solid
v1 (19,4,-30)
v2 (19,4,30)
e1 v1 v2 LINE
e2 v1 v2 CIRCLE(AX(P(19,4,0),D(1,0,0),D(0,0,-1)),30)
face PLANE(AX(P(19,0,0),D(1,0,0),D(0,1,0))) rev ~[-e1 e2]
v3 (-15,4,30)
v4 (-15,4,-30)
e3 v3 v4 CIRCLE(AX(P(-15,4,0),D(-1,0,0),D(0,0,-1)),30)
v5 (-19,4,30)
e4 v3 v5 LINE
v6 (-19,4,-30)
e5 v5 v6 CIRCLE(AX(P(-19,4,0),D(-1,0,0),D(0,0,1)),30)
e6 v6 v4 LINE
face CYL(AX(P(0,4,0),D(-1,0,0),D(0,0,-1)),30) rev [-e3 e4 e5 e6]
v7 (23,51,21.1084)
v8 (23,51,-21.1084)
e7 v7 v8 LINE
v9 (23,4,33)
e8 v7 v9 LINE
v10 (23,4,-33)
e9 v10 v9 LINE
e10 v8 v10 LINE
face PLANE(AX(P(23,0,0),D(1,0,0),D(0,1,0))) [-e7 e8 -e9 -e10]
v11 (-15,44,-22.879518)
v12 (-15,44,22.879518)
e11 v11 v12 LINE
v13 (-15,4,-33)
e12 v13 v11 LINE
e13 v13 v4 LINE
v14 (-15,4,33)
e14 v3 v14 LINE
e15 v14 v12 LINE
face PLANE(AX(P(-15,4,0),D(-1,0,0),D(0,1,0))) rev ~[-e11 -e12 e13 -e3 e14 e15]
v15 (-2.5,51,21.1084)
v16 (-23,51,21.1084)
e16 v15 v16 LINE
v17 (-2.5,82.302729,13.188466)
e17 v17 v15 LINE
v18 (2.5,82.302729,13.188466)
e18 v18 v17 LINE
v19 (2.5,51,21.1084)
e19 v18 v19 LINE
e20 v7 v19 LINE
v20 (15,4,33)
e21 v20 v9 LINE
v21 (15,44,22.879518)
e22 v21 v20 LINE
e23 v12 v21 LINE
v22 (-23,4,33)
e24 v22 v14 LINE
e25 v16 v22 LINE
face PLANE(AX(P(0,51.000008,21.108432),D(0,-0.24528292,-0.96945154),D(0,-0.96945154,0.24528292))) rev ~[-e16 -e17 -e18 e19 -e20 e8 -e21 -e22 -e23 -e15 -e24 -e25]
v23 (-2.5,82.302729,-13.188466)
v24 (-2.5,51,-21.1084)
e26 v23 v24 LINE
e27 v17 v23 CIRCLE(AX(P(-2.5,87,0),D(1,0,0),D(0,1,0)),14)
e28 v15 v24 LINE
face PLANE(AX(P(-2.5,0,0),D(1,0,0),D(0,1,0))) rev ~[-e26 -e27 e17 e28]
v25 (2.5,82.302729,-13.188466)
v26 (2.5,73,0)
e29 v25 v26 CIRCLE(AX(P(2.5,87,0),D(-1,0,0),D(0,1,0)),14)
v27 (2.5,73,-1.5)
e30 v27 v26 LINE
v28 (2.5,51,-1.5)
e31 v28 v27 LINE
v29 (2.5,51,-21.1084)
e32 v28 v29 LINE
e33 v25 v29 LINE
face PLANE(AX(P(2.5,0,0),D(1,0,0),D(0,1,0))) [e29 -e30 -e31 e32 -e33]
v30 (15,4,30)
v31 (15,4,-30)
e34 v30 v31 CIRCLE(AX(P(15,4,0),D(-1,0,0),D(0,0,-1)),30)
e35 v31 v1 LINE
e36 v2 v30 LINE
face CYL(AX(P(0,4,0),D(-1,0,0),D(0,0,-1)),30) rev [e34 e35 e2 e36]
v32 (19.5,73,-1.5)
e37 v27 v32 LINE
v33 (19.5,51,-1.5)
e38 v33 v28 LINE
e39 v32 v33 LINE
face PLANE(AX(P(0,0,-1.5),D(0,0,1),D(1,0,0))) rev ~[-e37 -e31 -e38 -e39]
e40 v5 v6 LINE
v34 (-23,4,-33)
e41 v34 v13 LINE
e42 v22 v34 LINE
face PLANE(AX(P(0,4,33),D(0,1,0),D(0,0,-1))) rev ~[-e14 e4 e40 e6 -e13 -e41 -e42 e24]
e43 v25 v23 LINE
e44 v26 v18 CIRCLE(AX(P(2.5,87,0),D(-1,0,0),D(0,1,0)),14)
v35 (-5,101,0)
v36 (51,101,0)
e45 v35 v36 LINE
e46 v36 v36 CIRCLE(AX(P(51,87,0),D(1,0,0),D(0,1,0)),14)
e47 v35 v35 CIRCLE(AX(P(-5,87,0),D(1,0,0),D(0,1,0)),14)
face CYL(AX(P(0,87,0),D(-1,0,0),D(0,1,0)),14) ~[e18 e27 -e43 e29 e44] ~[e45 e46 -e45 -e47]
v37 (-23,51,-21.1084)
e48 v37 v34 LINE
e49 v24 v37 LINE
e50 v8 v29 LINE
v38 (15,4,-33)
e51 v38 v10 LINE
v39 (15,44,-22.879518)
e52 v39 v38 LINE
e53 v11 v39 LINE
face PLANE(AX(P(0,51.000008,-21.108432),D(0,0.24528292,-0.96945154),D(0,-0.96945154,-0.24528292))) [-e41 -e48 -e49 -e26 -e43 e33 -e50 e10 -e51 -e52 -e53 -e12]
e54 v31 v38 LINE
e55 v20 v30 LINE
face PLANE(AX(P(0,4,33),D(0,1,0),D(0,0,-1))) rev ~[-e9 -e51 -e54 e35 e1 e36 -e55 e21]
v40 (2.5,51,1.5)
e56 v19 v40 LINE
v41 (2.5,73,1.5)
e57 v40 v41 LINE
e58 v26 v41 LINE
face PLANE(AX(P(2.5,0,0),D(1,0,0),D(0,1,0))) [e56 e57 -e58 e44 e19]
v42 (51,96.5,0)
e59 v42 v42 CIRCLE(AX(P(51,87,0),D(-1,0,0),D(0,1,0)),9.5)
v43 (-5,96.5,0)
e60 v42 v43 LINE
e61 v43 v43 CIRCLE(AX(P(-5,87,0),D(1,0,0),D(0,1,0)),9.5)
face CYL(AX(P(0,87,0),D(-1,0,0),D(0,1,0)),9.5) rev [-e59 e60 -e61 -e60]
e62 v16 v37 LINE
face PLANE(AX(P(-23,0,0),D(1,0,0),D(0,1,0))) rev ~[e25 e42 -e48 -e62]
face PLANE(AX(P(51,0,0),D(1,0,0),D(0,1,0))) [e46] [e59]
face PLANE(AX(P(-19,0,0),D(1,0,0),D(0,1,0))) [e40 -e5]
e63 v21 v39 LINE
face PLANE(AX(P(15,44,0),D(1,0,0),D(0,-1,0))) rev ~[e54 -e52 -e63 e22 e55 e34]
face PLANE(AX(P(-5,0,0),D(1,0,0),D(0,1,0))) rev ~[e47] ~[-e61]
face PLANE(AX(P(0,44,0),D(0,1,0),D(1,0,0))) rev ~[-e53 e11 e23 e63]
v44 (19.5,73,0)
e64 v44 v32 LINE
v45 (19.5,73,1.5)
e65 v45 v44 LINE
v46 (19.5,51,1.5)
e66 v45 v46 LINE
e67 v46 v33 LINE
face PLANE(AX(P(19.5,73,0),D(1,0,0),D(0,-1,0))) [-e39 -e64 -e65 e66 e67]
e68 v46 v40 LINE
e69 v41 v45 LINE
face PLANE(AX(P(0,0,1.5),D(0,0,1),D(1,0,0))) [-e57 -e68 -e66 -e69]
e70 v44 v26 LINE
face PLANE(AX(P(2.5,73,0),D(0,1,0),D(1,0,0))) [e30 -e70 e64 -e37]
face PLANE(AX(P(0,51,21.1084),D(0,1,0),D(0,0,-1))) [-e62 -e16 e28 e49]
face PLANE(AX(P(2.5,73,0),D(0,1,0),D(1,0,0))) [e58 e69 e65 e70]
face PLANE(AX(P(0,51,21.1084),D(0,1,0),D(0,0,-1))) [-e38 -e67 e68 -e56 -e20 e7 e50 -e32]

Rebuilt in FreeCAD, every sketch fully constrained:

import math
import FreeCAD as App
import Part
import Sketcher
from FreeCAD import Vector
Q = App.Units.Quantity

doc = App.newDocument("Part")
body = doc.addObject("PartDesign::Body", "Body")

sketch1 = body.newObject("Sketcher::SketchObject", "Sketch")
sketch1.AttachmentSupport = (doc.getObject("YZ_Plane"), [""])
sketch1.MapMode = "FlatFace"
sketch1.addGeometry([
    Part.LineSegment(Vector(51, 21, 0), Vector(4, 33, 0)),
    Part.LineSegment(Vector(4, 33, 0), Vector(4, -33, 0)),
    Part.LineSegment(Vector(4, -33, 0), Vector(51, -21, 0)),
    Part.LineSegment(Vector(51, -21, 0), Vector(51, 21, 0)),
], False)
sketch1.addConstraint([
    Sketcher.Constraint("Coincident", 0, 2, 1, 1),
    Sketcher.Constraint("Coincident", 1, 2, 2, 1),
    Sketcher.Constraint("Coincident", 2, 2, 3, 1),
    Sketcher.Constraint("Coincident", 3, 2, 0, 1),
    Sketcher.Constraint("Vertical", 1),
    Sketcher.Constraint("Vertical", 3),
    Sketcher.Constraint("Equal", 0, 2),
    Sketcher.Constraint("DistanceY", 1, 2, 1, 1, Q("66 mm")),
    Sketcher.Constraint("DistanceX", -1, 1, 0, 2, Q("4 mm")),
    Sketcher.Constraint("DistanceY", -1, 1, 0, 2, Q("33 mm")),
    Sketcher.Constraint("DistanceX", -1, 1, 2, 2, Q("51 mm")),
    Sketcher.Constraint("Distance", 0, Q("48.481 mm")),
])
pad1 = body.newObject("PartDesign::Pad", "Pad")
pad1.Profile = sketch1
pad1.Length = 46
pad1.Midplane = True

sketch2 = body.newObject("Sketcher::SketchObject", "Sketch001")
sketch2.AttachmentSupport = (doc.getObject("YZ_Plane"), [""])
sketch2.MapMode = "FlatFace"
sketch2.addGeometry([
    Part.LineSegment(Vector(87, 12, 0), Vector(51, 21, 0)),
    Part.LineSegment(Vector(51, 21, 0), Vector(51, -21, 0)),
    Part.LineSegment(Vector(51, -21, 0), Vector(87, -12, 0)),
    Part.LineSegment(Vector(87, -12, 0), Vector(87, 12, 0)),
], False)
sketch2.addConstraint([
    Sketcher.Constraint("Coincident", 0, 2, 1, 1),
    Sketcher.Constraint("Coincident", 1, 2, 2, 1),
    Sketcher.Constraint("Coincident", 2, 2, 3, 1),
    Sketcher.Constraint("Coincident", 3, 2, 0, 1),
    Sketcher.Constraint("Vertical", 1),
    Sketcher.Constraint("Vertical", 3),
    Sketcher.Constraint("Equal", 0, 2),
    Sketcher.Constraint("DistanceY", 3, 1, 3, 2, Q("24 mm")),
    Sketcher.Constraint("DistanceX", -1, 1, 2, 2, Q("87 mm")),
    Sketcher.Constraint("DistanceX", 1, 2, 2, 2, Q("36 mm")),
    Sketcher.Constraint("DistanceY", 2, 2, -1, 1, Q("12 mm")),
    Sketcher.Constraint("DistanceY", 1, 2, 1, 1, Q("42.2168 mm")),
])
pad2 = body.newObject("PartDesign::Pad", "Pad001")
pad2.Profile = sketch2
pad2.Length = 5
pad2.Midplane = True

sketch3 = body.newObject("Sketcher::SketchObject", "Sketch002")
sketch3.AttachmentSupport = (doc.getObject("XY_Plane"), [""])
sketch3.MapMode = "FlatFace"
sketch3.addGeometry([
    Part.LineSegment(Vector(15, 44, 0), Vector(-15, 44, 0)),
    Part.LineSegment(Vector(-15, 44, 0), Vector(-15, 4, 0)),
    Part.LineSegment(Vector(-15, 4, 0), Vector(15, 4, 0)),
    Part.LineSegment(Vector(15, 4, 0), Vector(15, 44, 0)),
], False)
sketch3.addConstraint([
    Sketcher.Constraint("Coincident", 0, 2, 1, 1),
    Sketcher.Constraint("Coincident", 1, 2, 2, 1),
    Sketcher.Constraint("Coincident", 2, 2, 3, 1),
    Sketcher.Constraint("Coincident", 3, 2, 0, 1),
    Sketcher.Constraint("Horizontal", 0),
    Sketcher.Constraint("Vertical", 1),
    Sketcher.Constraint("Horizontal", 2),
    Sketcher.Constraint("Vertical", 3),
    Sketcher.Constraint("DistanceX", 0, 2, 0, 1, Q("30 mm")),
    Sketcher.Constraint("DistanceY", 1, 2, 1, 1, Q("40 mm")),
    Sketcher.Constraint("DistanceX", 0, 2, -1, 1, Q("15 mm")),
    Sketcher.Constraint("DistanceY", -1, 1, 0, 2, Q("44 mm")),
])
pocket1 = body.newObject("PartDesign::Pocket", "Pocket")
pocket1.Profile = sketch3
pocket1.Length = 66
pocket1.Midplane = True

sketch4 = body.newObject("Sketcher::SketchObject", "Sketch003")
sketch4.AttachmentSupport = (doc.getObject("YZ_Plane"), [""])
sketch4.MapMode = "FlatFace"
sketch4.addGeometry([
    Part.Circle(Vector(87, 0, 0), Vector(0, 0, 1), 14),
    Part.Circle(Vector(87, 0, 0), Vector(0, 0, 1), 10),
], False)
sketch4.addConstraint([
    Sketcher.Constraint("Coincident", 1, 3, 0, 3),
    Sketcher.Constraint("PointOnObject", 0, 3, -1),
    Sketcher.Constraint("Diameter", 0, Q("28 mm")),
    Sketcher.Constraint("Diameter", 1, Q("19 mm")),
    Sketcher.Constraint("DistanceX", -1, 1, 0, 3, Q("87 mm")),
])
pad3 = body.newObject("PartDesign::Pad", "Pad002")
pad3.Profile = sketch4
pad3.Type = "TwoLengths"
pad3.Length = 51
pad3.Length2 = 5

sketch5 = body.newObject("Sketcher::SketchObject", "Sketch004")
sketch5.AttachmentSupport = (doc.getObject("YZ_Plane"), [""])
sketch5.MapMode = "FlatFace"
sketch5.addGeometry([
    Part.LineSegment(Vector(87, -10, 0), Vector(87, 10, 0)),
    Part.ArcOfCircle(Part.Circle(Vector(87, 0, 0), Vector(0, 0, 1), 10), math.radians(90), math.radians(270)),
], False)
sketch5.addConstraint([
    Sketcher.Constraint("Coincident", 0, 1, 1, 2),
    Sketcher.Constraint("Coincident", 1, 1, 0, 2),
    Sketcher.Constraint("Vertical", 0),
    Sketcher.Constraint("PointOnObject", 1, 3, -1),
    Sketcher.Constraint("Vertical", 1, 3, 0, 1),
    Sketcher.Constraint("Radius", 1, Q("9.5 mm")),
    Sketcher.Constraint("DistanceX", -1, 1, 1, 3, Q("87 mm")),
])
pocket2 = body.newObject("PartDesign::Pocket", "Pocket001")
pocket2.Profile = sketch5
pocket2.Type = "ThroughAll"
pocket2.Midplane = True

sketch6 = body.newObject("Sketcher::SketchObject", "Sketch005")
sketch6.AttachmentSupport = (doc.getObject("YZ_Plane"), [""])
sketch6.MapMode = "FlatFace"
sketch6.addGeometry([
    Part.ArcOfCircle(Part.Circle(Vector(4, 0, 0), Vector(0, 0, 1), 30), math.radians(-90), math.radians(90)),
    Part.LineSegment(Vector(4, 30, 0), Vector(4, -30, 0)),
], False)
sketch6.addConstraint([
    Sketcher.Constraint("Coincident", 0, 1, 1, 2),
    Sketcher.Constraint("Coincident", 1, 1, 0, 2),
    Sketcher.Constraint("Vertical", 1),
    Sketcher.Constraint("PointOnObject", 0, 3, -1),
    Sketcher.Constraint("Radius", 0, Q("30 mm")),
    Sketcher.Constraint("DistanceX", -1, 1, 0, 3, Q("4 mm")),
    Sketcher.Constraint("DistanceX", -1, 1, 0, 1, Q("4 mm")),
])
pocket3 = body.newObject("PartDesign::Pocket", "Pocket002")
pocket3.Profile = sketch6
pocket3.Length = 38
pocket3.Midplane = True

sketch7 = body.newObject("Sketcher::SketchObject", "Sketch006")
sketch7.AttachmentSupport = (doc.getObject("XY_Plane"), [""])
sketch7.MapMode = "FlatFace"
sketch7.addGeometry([
    Part.LineSegment(Vector(20, 73, 0), Vector(2, 73, 0)),
    Part.LineSegment(Vector(2, 73, 0), Vector(2, 51, 0)),
    Part.LineSegment(Vector(2, 51, 0), Vector(20, 51, 0)),
    Part.LineSegment(Vector(20, 51, 0), Vector(20, 73, 0)),
], False)
sketch7.addConstraint([
    Sketcher.Constraint("Coincident", 0, 2, 1, 1),
    Sketcher.Constraint("Coincident", 1, 2, 2, 1),
    Sketcher.Constraint("Coincident", 2, 2, 3, 1),
    Sketcher.Constraint("Coincident", 3, 2, 0, 1),
    Sketcher.Constraint("Horizontal", 0),
    Sketcher.Constraint("Vertical", 1),
    Sketcher.Constraint("Horizontal", 2),
    Sketcher.Constraint("Vertical", 3),
    Sketcher.Constraint("DistanceX", 0, 2, 0, 1, Q("17 mm")),
    Sketcher.Constraint("DistanceY", 1, 2, 1, 1, Q("22 mm")),
    Sketcher.Constraint("DistanceY", -1, 1, 0, 2, Q("73 mm")),
    Sketcher.Constraint("DistanceX", -1, 1, 0, 2, Q("2.5 mm")),
])
pad4 = body.newObject("PartDesign::Pad", "Pad003")
pad4.Profile = sketch7
pad4.Length = 3
pad4.Midplane = True

doc.recompute()
